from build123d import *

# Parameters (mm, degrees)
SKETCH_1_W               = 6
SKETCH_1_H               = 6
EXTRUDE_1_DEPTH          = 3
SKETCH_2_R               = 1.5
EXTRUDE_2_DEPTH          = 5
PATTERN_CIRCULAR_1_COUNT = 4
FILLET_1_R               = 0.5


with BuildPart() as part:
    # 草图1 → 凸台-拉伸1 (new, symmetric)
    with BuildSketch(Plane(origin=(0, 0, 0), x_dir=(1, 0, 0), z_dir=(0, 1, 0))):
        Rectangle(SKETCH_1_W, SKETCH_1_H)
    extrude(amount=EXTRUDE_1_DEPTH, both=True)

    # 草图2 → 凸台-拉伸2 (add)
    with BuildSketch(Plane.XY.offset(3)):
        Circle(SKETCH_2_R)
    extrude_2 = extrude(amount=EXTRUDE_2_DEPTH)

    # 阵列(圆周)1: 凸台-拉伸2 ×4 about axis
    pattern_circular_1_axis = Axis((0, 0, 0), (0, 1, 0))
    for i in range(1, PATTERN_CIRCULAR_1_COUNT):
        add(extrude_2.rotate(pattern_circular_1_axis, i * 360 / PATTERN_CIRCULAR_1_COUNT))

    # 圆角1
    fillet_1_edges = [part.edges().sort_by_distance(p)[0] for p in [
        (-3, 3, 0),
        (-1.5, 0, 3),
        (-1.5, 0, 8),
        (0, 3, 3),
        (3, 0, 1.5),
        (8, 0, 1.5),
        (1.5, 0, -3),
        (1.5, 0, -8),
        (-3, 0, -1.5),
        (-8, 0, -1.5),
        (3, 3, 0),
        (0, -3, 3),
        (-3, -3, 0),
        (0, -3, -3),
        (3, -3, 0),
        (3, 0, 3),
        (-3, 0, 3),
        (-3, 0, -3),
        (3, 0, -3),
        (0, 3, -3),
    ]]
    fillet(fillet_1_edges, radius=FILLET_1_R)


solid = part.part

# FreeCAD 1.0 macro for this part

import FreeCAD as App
import Part
import Sketcher
from FreeCAD import Vector
Q = App.Units.Quantity

doc = App.newDocument("Part")
body = doc.addObject("PartDesign::Body", "Body")

sketch1 = doc.addObject("Sketcher::SketchObject", "Sketch")
body.addObject(sketch1)
sketch1.AttachmentSupport = (doc.XZ_Plane, [""])
sketch1.MapMode = "FlatFace"
sketch1.addGeometry(Part.LineSegment(Vector(-3, -3, 0), Vector(-3, 3, 0)), False)
sketch1.addGeometry(Part.LineSegment(Vector(-3, 3, 0), Vector(3, 3, 0)), False)
sketch1.addGeometry(Part.LineSegment(Vector(3, 3, 0), Vector(3, -3, 0)), False)
sketch1.addGeometry(Part.LineSegment(Vector(3, -3, 0), Vector(-3, -3, 0)), False)
sketch1.addConstraint(Sketcher.Constraint("Coincident", 0, 2, 1, 1))
sketch1.addConstraint(Sketcher.Constraint("Coincident", 1, 2, 2, 1))
sketch1.addConstraint(Sketcher.Constraint("Coincident", 2, 2, 3, 1))
sketch1.addConstraint(Sketcher.Constraint("Coincident", 3, 2, 0, 1))
sketch1.addConstraint(Sketcher.Constraint("Vertical", 0))
sketch1.addConstraint(Sketcher.Constraint("Horizontal", 1))
sketch1.addConstraint(Sketcher.Constraint("Vertical", 2))
sketch1.addConstraint(Sketcher.Constraint("Horizontal", 3))
sketch1.addConstraint(Sketcher.Constraint("Symmetric", 0, 2, 2, 2, -1, 1))
sketch1.addConstraint(Sketcher.Constraint("Equal", 3, 0))
sketch1.addConstraint(Sketcher.Constraint("DistanceX", 1, 1, 1, 2, Q("6 mm")))
pad1 = doc.addObject("PartDesign::Pad", "Pad")
body.addObject(pad1)
pad1.Profile = sketch1
pad1.Length = 6
pad1.Midplane = True

sketch2 = doc.addObject("Sketcher::SketchObject", "Sketch001")
body.addObject(sketch2)
sketch2.AttachmentSupport = (doc.XY_Plane, [""])
sketch2.MapMode = "FlatFace"
sketch2.AttachmentOffset = App.Placement(Vector(0, 0, 3), App.Rotation())
sketch2.addGeometry(Part.Circle(Vector(0, 0, 0), Vector(0, 0, 1), 1.5), False)
sketch2.addConstraint(Sketcher.Constraint("Coincident", 0, 3, -1, 1))
sketch2.addConstraint(Sketcher.Constraint("Diameter", 0, Q("3 mm")))
pad2 = doc.addObject("PartDesign::Pad", "Pad001")
body.addObject(pad2)
pad2.Profile = sketch2
pad2.Length = 5
doc.recompute()

polarpattern = doc.addObject("PartDesign::PolarPattern", "PolarPattern")
body.addObject(polarpattern)
polarpattern.Originals = [pad2]
polarpattern.Axis = (doc.Y_Axis, [""])
polarpattern.Angle = 360
polarpattern.Occurrences = 4
body.Tip = polarpattern
doc.recompute()

fillet = doc.addObject("PartDesign::Fillet", "Fillet")
body.addObject(fillet)
fillet.Base = (polarpattern, ["Edge1"])
fillet.UseAllEdges = True
fillet.Radius = 0.5

doc.recompute()
